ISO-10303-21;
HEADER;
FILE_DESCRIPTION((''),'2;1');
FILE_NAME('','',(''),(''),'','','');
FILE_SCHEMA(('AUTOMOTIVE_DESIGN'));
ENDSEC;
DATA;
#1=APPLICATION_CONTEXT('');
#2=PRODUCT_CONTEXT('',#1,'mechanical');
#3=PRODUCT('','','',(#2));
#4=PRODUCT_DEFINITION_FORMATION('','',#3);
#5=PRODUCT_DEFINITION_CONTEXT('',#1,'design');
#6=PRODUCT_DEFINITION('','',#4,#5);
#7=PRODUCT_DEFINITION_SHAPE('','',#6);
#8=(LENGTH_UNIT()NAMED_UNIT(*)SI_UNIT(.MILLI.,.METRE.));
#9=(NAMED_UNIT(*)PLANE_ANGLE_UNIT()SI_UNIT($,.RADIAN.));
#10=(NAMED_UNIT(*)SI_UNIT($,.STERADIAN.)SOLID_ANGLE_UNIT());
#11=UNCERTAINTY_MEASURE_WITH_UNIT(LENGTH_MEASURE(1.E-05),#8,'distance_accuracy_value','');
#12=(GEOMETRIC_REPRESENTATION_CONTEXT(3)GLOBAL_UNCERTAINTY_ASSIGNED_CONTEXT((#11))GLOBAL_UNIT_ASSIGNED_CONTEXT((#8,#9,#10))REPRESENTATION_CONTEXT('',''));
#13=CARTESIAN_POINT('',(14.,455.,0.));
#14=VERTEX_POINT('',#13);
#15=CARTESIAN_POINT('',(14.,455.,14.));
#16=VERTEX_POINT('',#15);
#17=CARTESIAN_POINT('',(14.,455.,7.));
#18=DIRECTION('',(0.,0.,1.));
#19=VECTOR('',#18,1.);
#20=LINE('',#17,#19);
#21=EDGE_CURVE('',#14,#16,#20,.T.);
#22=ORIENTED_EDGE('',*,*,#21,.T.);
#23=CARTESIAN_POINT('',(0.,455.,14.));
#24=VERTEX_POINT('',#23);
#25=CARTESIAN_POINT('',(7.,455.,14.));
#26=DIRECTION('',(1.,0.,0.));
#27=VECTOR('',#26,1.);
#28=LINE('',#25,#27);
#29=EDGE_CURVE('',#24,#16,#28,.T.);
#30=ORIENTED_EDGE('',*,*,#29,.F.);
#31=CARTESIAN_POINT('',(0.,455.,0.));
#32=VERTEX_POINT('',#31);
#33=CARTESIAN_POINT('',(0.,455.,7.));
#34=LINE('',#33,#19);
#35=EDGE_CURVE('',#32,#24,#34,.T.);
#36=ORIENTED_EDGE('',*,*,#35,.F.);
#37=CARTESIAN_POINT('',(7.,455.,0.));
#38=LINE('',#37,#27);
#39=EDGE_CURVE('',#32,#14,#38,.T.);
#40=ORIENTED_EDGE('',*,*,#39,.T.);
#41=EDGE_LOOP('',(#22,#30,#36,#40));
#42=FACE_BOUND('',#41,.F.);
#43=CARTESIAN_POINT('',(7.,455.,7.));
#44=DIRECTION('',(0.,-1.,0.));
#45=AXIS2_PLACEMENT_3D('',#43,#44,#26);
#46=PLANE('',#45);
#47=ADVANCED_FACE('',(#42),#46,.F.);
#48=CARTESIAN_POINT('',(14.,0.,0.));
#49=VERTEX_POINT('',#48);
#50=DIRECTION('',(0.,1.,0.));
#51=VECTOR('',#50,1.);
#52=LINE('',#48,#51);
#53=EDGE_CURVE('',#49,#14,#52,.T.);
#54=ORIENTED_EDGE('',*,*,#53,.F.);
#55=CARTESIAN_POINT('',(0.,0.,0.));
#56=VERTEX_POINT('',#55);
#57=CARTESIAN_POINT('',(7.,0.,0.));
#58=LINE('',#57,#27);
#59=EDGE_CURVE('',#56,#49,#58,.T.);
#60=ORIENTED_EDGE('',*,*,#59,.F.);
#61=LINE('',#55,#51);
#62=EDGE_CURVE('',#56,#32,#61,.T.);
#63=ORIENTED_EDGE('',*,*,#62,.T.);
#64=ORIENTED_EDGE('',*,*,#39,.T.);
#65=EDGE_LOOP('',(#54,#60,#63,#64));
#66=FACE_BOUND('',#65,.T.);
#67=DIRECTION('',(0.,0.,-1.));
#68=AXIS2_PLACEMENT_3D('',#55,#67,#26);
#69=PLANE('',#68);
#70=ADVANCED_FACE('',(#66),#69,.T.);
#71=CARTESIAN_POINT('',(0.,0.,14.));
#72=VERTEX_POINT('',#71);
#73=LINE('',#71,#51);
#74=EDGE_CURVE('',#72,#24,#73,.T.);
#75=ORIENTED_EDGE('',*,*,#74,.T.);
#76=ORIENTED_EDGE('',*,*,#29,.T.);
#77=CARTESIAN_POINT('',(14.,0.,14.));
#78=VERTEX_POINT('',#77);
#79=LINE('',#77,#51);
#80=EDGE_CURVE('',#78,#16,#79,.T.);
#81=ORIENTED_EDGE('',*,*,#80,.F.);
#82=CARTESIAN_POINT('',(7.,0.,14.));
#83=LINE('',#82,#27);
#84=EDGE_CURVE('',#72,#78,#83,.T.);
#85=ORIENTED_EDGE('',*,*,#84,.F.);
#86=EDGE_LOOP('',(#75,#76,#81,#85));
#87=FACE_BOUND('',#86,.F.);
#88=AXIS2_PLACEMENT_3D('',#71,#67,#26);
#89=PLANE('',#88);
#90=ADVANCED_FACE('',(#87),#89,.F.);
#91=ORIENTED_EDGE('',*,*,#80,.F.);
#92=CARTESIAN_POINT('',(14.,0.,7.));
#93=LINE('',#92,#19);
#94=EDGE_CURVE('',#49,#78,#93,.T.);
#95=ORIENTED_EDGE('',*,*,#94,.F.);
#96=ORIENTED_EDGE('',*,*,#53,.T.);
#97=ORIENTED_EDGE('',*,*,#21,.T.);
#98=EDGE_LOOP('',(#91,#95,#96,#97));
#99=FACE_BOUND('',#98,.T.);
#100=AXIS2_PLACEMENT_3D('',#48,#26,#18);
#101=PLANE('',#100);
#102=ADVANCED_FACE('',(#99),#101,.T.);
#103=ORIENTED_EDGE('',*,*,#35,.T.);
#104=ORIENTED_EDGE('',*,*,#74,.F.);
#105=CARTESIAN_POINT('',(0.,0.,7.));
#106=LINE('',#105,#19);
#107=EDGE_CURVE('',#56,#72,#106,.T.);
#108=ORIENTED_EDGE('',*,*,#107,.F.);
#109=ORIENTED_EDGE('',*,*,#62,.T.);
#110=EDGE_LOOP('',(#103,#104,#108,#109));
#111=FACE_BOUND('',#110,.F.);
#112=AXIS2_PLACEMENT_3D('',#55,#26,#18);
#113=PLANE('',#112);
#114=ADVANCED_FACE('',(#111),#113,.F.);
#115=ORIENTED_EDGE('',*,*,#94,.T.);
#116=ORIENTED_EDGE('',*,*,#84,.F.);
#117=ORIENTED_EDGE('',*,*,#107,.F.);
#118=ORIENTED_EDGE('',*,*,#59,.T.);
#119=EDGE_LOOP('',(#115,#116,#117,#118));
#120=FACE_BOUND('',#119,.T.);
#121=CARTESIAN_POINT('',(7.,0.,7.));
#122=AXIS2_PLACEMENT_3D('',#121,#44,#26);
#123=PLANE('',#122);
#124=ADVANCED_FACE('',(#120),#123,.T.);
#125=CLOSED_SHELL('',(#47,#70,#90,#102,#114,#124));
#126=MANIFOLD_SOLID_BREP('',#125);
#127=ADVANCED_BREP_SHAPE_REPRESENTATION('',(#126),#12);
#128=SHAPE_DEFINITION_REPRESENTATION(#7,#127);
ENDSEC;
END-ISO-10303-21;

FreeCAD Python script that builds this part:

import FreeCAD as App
import Part
import Sketcher

V = App.Vector


def add_polygon(sketch, points):
    """Adds a closed chain of lines whose ends are joined by coincident constraints."""
    first, n = sketch.GeometryCount, len(points)
    for a, b in zip(points, points[1:] + points[:1]):
        sketch.addGeometry(Part.LineSegment(App.Vector(*a, 0), App.Vector(*b, 0)), False)
    for i in range(n):
        sketch.addConstraint(Sketcher.Constraint("Coincident", first + i, 2, first + (i + 1) % n, 1))

doc = App.newDocument("Part")
body = doc.addObject("PartDesign::Body", "Body")

# Sketch on XZ plane
sketch1 = body.newObject("Sketcher::SketchObject", "Sketch")
sketch1.AttachmentSupport = (doc.getObject("XZ_Plane"), [""])
sketch1.MapMode = "FlatFace"
add_polygon(sketch1, [(0, 14), (0, 0), (14, 0), (14, 14)])  # lines 0-3
sketch1.addConstraint(Sketcher.Constraint("Vertical", 0))
sketch1.addConstraint(Sketcher.Constraint("Horizontal", 1))
sketch1.addConstraint(Sketcher.Constraint("Vertical", 2))
sketch1.addConstraint(Sketcher.Constraint("Horizontal", 3))
sketch1.addConstraint(Sketcher.Constraint("Coincident", 0, 2, -1, 1))
sketch1.addConstraint(Sketcher.Constraint("Equal", 3, 0))
sketch1.addConstraint(Sketcher.Constraint("DistanceX", 1, 1, 1, 2, 14.0))
pad1 = body.newObject("PartDesign::Pad", "Pad")
pad1.Profile = sketch1
pad1.Length = 455
pad1.Reversed = True

doc.recompute()
